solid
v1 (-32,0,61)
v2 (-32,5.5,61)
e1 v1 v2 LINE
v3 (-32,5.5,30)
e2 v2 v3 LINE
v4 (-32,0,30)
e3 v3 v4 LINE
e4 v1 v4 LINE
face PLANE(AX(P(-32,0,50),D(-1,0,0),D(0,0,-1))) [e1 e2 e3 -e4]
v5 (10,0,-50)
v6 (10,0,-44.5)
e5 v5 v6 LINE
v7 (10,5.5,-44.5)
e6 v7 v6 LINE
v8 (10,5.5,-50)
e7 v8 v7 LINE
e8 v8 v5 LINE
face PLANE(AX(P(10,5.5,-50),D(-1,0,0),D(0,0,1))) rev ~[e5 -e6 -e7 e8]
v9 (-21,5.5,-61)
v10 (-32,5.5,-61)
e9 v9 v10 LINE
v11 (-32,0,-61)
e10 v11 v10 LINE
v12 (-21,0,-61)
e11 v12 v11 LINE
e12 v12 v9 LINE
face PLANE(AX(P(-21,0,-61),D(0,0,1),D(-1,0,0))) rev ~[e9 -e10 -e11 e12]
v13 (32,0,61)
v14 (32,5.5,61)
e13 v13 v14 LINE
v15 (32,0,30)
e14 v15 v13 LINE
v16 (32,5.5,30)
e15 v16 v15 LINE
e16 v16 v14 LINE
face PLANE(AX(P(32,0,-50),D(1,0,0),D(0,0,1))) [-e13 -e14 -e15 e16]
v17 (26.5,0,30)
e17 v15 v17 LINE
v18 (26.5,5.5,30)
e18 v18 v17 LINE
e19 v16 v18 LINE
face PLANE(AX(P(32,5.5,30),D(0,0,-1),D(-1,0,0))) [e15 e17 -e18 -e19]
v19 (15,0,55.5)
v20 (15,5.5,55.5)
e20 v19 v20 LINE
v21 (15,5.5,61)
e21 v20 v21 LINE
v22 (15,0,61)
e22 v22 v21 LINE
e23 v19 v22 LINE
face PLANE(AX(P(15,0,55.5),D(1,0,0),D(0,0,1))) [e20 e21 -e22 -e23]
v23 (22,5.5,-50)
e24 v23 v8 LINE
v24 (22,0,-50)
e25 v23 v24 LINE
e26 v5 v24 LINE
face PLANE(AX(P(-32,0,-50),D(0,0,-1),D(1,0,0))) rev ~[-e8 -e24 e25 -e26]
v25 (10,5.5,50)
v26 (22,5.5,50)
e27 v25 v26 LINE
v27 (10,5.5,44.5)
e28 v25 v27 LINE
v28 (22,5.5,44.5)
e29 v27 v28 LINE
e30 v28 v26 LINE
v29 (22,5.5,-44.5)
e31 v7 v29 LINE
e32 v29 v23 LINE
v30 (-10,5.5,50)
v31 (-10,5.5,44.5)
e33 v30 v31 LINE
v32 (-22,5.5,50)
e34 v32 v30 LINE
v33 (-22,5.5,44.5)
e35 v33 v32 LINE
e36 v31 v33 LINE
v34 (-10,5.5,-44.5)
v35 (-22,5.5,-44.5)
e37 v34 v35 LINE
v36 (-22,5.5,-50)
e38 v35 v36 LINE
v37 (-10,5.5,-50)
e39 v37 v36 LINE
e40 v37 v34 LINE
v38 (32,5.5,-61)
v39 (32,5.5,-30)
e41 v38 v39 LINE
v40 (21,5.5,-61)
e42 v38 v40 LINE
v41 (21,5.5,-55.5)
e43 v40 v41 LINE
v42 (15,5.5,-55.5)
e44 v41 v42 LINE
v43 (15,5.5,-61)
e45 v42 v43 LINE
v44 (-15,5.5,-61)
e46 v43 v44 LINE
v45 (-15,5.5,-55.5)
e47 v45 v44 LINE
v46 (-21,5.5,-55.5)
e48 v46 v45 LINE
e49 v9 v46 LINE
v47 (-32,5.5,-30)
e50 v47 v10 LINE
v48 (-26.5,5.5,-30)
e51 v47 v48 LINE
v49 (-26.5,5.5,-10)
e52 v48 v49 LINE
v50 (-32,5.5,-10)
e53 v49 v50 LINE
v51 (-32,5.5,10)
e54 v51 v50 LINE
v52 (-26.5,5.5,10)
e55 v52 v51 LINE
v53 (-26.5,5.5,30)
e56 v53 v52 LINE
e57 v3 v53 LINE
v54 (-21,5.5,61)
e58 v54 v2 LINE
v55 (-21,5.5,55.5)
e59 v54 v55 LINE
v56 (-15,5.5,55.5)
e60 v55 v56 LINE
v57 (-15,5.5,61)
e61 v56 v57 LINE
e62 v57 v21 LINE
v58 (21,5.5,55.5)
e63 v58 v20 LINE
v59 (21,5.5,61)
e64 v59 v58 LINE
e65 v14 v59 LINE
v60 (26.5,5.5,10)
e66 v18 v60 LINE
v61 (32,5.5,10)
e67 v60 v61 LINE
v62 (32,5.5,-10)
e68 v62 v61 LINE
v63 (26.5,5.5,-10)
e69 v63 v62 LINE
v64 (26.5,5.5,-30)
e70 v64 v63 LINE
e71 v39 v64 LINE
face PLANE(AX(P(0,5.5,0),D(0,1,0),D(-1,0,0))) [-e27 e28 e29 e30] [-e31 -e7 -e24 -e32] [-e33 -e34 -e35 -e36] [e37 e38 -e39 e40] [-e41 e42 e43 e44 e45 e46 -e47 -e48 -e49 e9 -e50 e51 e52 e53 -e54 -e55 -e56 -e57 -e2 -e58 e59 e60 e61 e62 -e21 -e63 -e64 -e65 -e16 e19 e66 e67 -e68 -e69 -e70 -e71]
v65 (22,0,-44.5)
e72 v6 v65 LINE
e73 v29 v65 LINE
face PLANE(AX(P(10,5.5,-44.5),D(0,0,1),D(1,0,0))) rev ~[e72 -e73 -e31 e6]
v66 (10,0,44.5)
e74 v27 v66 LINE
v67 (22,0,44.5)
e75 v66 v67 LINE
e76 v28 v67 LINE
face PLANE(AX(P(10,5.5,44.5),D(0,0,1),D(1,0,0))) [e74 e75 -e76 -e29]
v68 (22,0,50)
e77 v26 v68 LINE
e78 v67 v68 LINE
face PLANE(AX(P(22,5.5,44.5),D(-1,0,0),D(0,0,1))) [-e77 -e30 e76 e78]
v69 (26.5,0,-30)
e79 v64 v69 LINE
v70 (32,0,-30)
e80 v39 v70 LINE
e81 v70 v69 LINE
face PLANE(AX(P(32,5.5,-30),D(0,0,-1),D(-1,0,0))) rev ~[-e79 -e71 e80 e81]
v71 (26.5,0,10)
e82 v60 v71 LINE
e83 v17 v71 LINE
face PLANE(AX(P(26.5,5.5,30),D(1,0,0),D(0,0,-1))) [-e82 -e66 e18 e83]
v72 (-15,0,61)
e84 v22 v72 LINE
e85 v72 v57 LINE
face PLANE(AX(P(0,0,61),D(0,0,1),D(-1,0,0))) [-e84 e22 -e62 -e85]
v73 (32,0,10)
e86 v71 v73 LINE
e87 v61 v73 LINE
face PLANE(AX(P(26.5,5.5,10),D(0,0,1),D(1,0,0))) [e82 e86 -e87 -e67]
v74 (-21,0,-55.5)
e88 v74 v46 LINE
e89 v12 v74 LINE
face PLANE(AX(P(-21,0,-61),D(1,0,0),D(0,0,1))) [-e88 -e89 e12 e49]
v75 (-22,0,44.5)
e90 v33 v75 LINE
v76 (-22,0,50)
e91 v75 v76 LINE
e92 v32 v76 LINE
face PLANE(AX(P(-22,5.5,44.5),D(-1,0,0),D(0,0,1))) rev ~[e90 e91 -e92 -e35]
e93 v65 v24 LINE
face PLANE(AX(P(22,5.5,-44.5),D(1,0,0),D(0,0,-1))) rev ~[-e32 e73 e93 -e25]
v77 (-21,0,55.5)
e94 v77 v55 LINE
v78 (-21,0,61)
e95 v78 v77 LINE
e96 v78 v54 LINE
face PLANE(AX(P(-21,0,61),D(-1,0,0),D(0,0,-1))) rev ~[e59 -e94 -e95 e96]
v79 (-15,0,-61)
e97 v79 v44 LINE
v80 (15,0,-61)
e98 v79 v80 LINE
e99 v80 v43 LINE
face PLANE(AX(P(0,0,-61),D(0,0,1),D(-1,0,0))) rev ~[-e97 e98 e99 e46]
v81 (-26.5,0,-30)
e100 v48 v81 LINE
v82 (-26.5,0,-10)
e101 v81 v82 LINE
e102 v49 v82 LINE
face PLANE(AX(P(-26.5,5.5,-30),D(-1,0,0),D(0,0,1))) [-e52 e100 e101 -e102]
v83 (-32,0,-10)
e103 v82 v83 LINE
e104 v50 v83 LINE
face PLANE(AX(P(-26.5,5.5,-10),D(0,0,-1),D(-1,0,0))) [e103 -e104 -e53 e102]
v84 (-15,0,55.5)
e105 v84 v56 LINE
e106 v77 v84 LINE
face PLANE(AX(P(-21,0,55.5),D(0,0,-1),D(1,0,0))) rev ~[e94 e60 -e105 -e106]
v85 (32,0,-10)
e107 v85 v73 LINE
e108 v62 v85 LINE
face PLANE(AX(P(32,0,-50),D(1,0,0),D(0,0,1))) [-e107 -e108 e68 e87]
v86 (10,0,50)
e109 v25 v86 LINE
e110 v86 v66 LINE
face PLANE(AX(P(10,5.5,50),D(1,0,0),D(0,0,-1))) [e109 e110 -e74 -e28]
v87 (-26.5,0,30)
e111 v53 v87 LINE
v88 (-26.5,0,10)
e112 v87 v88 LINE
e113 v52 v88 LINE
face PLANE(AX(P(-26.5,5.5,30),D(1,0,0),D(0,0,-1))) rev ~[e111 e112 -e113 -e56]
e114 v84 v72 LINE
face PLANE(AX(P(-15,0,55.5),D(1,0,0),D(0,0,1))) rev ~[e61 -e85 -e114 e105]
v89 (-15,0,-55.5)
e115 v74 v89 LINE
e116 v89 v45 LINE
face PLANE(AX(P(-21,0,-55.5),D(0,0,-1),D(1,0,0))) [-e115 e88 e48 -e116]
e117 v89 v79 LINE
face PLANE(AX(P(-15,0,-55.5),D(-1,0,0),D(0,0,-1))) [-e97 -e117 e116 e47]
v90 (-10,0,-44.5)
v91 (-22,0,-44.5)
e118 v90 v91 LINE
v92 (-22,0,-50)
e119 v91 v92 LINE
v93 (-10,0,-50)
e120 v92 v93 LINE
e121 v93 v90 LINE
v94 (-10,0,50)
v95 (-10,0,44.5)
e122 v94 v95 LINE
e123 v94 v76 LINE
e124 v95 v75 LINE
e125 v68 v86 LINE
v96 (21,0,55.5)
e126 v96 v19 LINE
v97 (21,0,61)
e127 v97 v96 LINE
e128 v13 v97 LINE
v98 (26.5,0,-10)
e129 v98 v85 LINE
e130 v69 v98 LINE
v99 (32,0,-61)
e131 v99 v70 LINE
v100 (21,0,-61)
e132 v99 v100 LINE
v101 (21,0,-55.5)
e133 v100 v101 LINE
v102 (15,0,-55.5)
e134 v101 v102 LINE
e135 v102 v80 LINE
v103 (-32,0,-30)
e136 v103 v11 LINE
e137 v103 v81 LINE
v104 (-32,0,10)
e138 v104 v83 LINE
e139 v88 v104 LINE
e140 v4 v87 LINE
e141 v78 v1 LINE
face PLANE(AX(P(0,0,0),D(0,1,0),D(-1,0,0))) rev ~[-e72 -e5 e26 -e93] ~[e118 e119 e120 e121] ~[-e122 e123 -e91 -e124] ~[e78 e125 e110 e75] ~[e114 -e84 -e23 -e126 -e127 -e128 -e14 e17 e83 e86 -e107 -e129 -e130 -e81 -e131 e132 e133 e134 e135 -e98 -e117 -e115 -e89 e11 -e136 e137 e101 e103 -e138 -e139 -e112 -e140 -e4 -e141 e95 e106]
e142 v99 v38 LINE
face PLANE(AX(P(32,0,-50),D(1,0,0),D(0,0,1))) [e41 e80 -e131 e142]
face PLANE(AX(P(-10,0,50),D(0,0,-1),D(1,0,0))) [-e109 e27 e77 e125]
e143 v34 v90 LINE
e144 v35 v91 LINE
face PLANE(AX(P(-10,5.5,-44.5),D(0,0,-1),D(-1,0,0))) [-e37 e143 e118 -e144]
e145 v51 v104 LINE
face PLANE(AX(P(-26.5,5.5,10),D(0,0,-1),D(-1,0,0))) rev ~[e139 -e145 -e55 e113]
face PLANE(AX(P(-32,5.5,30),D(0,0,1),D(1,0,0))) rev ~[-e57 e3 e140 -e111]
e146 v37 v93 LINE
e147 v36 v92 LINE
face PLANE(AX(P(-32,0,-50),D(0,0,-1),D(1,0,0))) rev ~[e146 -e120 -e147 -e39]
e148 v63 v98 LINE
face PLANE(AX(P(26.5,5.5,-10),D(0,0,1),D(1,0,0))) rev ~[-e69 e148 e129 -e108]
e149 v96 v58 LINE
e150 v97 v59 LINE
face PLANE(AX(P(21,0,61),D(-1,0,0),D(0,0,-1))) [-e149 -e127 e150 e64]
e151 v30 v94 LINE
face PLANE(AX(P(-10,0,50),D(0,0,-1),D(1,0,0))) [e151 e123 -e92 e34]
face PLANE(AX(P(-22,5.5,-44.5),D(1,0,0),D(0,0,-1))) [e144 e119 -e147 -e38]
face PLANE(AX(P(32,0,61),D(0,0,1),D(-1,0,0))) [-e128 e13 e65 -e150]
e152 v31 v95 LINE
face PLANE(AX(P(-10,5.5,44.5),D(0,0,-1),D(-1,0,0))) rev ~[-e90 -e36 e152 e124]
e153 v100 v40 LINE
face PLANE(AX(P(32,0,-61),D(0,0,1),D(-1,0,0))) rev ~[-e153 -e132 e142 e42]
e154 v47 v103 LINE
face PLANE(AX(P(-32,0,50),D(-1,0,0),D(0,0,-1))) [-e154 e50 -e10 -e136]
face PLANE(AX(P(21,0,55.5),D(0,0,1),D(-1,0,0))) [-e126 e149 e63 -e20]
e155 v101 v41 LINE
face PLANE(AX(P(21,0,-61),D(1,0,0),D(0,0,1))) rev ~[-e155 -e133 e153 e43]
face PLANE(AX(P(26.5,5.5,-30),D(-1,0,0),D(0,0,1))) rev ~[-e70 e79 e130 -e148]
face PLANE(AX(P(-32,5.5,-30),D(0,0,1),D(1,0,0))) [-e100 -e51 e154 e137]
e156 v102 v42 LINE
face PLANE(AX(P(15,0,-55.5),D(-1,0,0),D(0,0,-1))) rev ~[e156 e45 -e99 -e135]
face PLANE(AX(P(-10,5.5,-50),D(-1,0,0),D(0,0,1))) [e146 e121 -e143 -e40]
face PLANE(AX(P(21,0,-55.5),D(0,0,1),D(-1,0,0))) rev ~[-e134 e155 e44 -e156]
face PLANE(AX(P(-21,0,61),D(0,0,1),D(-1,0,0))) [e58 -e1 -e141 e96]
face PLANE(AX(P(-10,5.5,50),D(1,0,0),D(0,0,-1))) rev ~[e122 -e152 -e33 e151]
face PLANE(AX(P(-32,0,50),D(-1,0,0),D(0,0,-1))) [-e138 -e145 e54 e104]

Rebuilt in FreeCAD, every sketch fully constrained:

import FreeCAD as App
import Part
import Sketcher
from FreeCAD import Vector
Q = App.Units.Quantity


def add_polygon(sketch, points):
    """Adds a closed chain of lines whose ends are joined by coincident constraints."""
    first, n = sketch.GeometryCount, len(points)
    for a, b in zip(points, points[1:] + points[:1]):
        sketch.addGeometry(Part.LineSegment(App.Vector(*a, 0), App.Vector(*b, 0)), False)
    for i in range(n):
        sketch.addConstraint(Sketcher.Constraint("Coincident", first + i, 2, first + (i + 1) % n, 1))

doc = App.newDocument("Part")
body = doc.addObject("PartDesign::Body", "Body")

# Sketch on XZ plane
sketch1 = body.newObject("Sketcher::SketchObject", "Sketch")
sketch1.AttachmentSupport = (doc.getObject("XZ_Plane"), [""])
sketch1.MapMode = "FlatFace"
add_polygon(sketch1, [(32, -50), (-32, -50), (-32, 50), (32, 50)])  # lines 0-3
sketch1.addConstraint(Sketcher.Constraint("Horizontal", 0))
sketch1.addConstraint(Sketcher.Constraint("Vertical", 1))
sketch1.addConstraint(Sketcher.Constraint("Horizontal", 2))
sketch1.addConstraint(Sketcher.Constraint("Vertical", 3))
sketch1.addConstraint(Sketcher.Constraint("Symmetric", 0, 2, 2, 2, -1, 1))
sketch1.addConstraint(Sketcher.Constraint("DistanceX", 0, 2, 0, 1, Q("64 mm")))
sketch1.addConstraint(Sketcher.Constraint("DistanceY", 1, 1, 1, 2, Q("100 mm")))
pad1 = body.newObject("PartDesign::Pad", "Pad")
pad1.Profile = sketch1
pad1.Length = 5.5
pad1.Reversed = True

# Sketch on XZ plane
sketch2 = body.newObject("Sketcher::SketchObject", "Sketch001")
sketch2.AttachmentSupport = (doc.getObject("XZ_Plane"), [""])
sketch2.MapMode = "FlatFace"
sketch2.AttachmentOffset = App.Placement(Vector(0, 0, -5.5), App.Rotation())
add_polygon(sketch2, [(-26, 10), (-32, 10), (-32, 30), (-26, 30)])  # lines 0-3
add_polygon(sketch2, [(-26, -30), (-32, -30), (-32, -10), (-26, -10)])  # lines 4-7
add_polygon(sketch2, [(32, -10), (32, -30), (26, -30), (26, -10)])  # lines 8-11
add_polygon(sketch2, [(26, 30), (32, 30), (32, 10), (26, 10)])  # lines 12-15
sketch2.addConstraint(Sketcher.Constraint("Horizontal", 0))
sketch2.addConstraint(Sketcher.Constraint("Vertical", 1))
sketch2.addConstraint(Sketcher.Constraint("Horizontal", 2))
sketch2.addConstraint(Sketcher.Constraint("Vertical", 3))
sketch2.addConstraint(Sketcher.Constraint("Horizontal", 4))
sketch2.addConstraint(Sketcher.Constraint("Vertical", 5))
sketch2.addConstraint(Sketcher.Constraint("Horizontal", 6))
sketch2.addConstraint(Sketcher.Constraint("Vertical", 7))
sketch2.addConstraint(Sketcher.Constraint("Vertical", 8))
sketch2.addConstraint(Sketcher.Constraint("Horizontal", 9))
sketch2.addConstraint(Sketcher.Constraint("Vertical", 10))
sketch2.addConstraint(Sketcher.Constraint("Horizontal", 11))
sketch2.addConstraint(Sketcher.Constraint("Horizontal", 12))
sketch2.addConstraint(Sketcher.Constraint("Vertical", 13))
sketch2.addConstraint(Sketcher.Constraint("Horizontal", 14))
sketch2.addConstraint(Sketcher.Constraint("Vertical", 15))
sketch2.addConstraint(Sketcher.Constraint("Symmetric", 1, 2, 8, 2, -1, 1))
sketch2.addConstraint(Sketcher.Constraint("Symmetric", 3, 2, 10, 2, -1, 1))
sketch2.addConstraint(Sketcher.Constraint("Symmetric", 4, 2, 12, 2, -1, 1))
sketch2.addConstraint(Sketcher.Constraint("Symmetric", 6, 2, 14, 2, -1, 1))
sketch2.addConstraint(Sketcher.Constraint("Symmetric", 4, 2, 8, 2, -2))
sketch2.addConstraint(Sketcher.Constraint("Symmetric", 6, 2, 10, 2, -2))
sketch2.addConstraint(Sketcher.Constraint("DistanceY", 1, 1, 1, 2, Q("20 mm")))
sketch2.addConstraint(Sketcher.Constraint("DistanceX", 0, 2, 0, 1, Q("5.5 mm")))
sketch2.addConstraint(Sketcher.Constraint("DistanceY", 5, 2, 0, 2, Q("20 mm")))
sketch2.addConstraint(Sketcher.Constraint("DistanceX", 0, 2, -1, 1, Q("32 mm")))
pocket1 = body.newObject("PartDesign::Pocket", "Pocket")
pocket1.Profile = sketch2
pocket1.Type = "ThroughAll"
pocket1.Reversed = True

# Sketch on XZ plane
sketch3 = body.newObject("Sketcher::SketchObject", "Sketch002")
sketch3.AttachmentSupport = (doc.getObject("XZ_Plane"), [""])
sketch3.MapMode = "FlatFace"
sketch3.AttachmentOffset = App.Placement(Vector(0, 0, -5.5), App.Rotation())
add_polygon(sketch3, [(22, -44), (22, -50), (10, -50), (10, -44)])  # lines 0-3
add_polygon(sketch3, [(-10, -44), (-10, -50), (-22, -50), (-22, -44)])  # lines 4-7
add_polygon(sketch3, [(-22, 44), (-22, 50), (-10, 50), (-10, 44)])  # lines 8-11
add_polygon(sketch3, [(22, 44), (10, 44), (10, 50), (22, 50)])  # lines 12-15
sketch3.addConstraint(Sketcher.Constraint("Vertical", 0))
sketch3.addConstraint(Sketcher.Constraint("Horizontal", 1))
sketch3.addConstraint(Sketcher.Constraint("Vertical", 2))
sketch3.addConstraint(Sketcher.Constraint("Horizontal", 3))
sketch3.addConstraint(Sketcher.Constraint("Vertical", 4))
sketch3.addConstraint(Sketcher.Constraint("Horizontal", 5))
sketch3.addConstraint(Sketcher.Constraint("Vertical", 6))
sketch3.addConstraint(Sketcher.Constraint("Horizontal", 7))
sketch3.addConstraint(Sketcher.Constraint("Vertical", 8))
sketch3.addConstraint(Sketcher.Constraint("Horizontal", 9))
sketch3.addConstraint(Sketcher.Constraint("Vertical", 10))
sketch3.addConstraint(Sketcher.Constraint("Horizontal", 11))
sketch3.addConstraint(Sketcher.Constraint("Horizontal", 12))
sketch3.addConstraint(Sketcher.Constraint("Vertical", 13))
sketch3.addConstraint(Sketcher.Constraint("Horizontal", 14))
sketch3.addConstraint(Sketcher.Constraint("Vertical", 15))
sketch3.addConstraint(Sketcher.Constraint("Symmetric", 0, 2, 8, 2, -1, 1))
sketch3.addConstraint(Sketcher.Constraint("Symmetric", 2, 2, 10, 2, -1, 1))
sketch3.addConstraint(Sketcher.Constraint("Symmetric", 7, 2, 12, 2, -1, 1))
sketch3.addConstraint(Sketcher.Constraint("Symmetric", 5, 2, 14, 2, -1, 1))
sketch3.addConstraint(Sketcher.Constraint("Symmetric", 1, 2, 4, 2, -2))
sketch3.addConstraint(Sketcher.Constraint("Symmetric", 3, 2, 6, 2, -2))
sketch3.addConstraint(Sketcher.Constraint("DistanceX", 1, 2, 1, 1, Q("12 mm")))
sketch3.addConstraint(Sketcher.Constraint("DistanceY", 0, 2, 0, 1, Q("5.5 mm")))
sketch3.addConstraint(Sketcher.Constraint("DistanceX", 4, 2, 1, 2, Q("20 mm")))
sketch3.addConstraint(Sketcher.Constraint("DistanceY", 0, 2, -1, 1, Q("50 mm")))
pocket2 = body.newObject("PartDesign::Pocket", "Pocket001")
pocket2.Profile = sketch3
pocket2.Type = "ThroughAll"
pocket2.Reversed = True

# Sketch on XZ plane
sketch4 = body.newObject("Sketcher::SketchObject", "Sketch003")
sketch4.AttachmentSupport = (doc.getObject("XZ_Plane"), [""])
sketch4.MapMode = "FlatFace"
add_polygon(sketch4, [(32, 50), (32, 61), (21, 61), (21, 56), (15, 56), (15, 61), (-15, 61), (-15, 56), (-21, 56), (-21, 61), (-32, 61), (-32, 50)])  # lines 0-11
add_polygon(sketch4, [(-32, -50), (-32, -61), (-21, -61), (-21, -56), (-15, -56), (-15, -61), (15, -61), (15, -56), (21, -56), (21, -61), (32, -61), (32, -50)])  # lines 12-23
sketch4.addConstraint(Sketcher.Constraint("Vertical", 0))
sketch4.addConstraint(Sketcher.Constraint("Horizontal", 1))
sketch4.addConstraint(Sketcher.Constraint("Vertical", 2))
sketch4.addConstraint(Sketcher.Constraint("Horizontal", 3))
sketch4.addConstraint(Sketcher.Constraint("Vertical", 4))
sketch4.addConstraint(Sketcher.Constraint("Horizontal", 5))
sketch4.addConstraint(Sketcher.Constraint("Vertical", 6))
sketch4.addConstraint(Sketcher.Constraint("Horizontal", 7))
sketch4.addConstraint(Sketcher.Constraint("Vertical", 8))
sketch4.addConstraint(Sketcher.Constraint("Horizontal", 9))
sketch4.addConstraint(Sketcher.Constraint("Vertical", 10))
sketch4.addConstraint(Sketcher.Constraint("Horizontal", 11))
sketch4.addConstraint(Sketcher.Constraint("Vertical", 12))
sketch4.addConstraint(Sketcher.Constraint("Horizontal", 13))
sketch4.addConstraint(Sketcher.Constraint("Vertical", 14))
sketch4.addConstraint(Sketcher.Constraint("Horizontal", 15))
sketch4.addConstraint(Sketcher.Constraint("Vertical", 16))
sketch4.addConstraint(Sketcher.Constraint("Horizontal", 17))
sketch4.addConstraint(Sketcher.Constraint("Vertical", 18))
sketch4.addConstraint(Sketcher.Constraint("Horizontal", 19))
sketch4.addConstraint(Sketcher.Constraint("Vertical", 20))
sketch4.addConstraint(Sketcher.Constraint("Horizontal", 21))
sketch4.addConstraint(Sketcher.Constraint("Vertical", 22))
sketch4.addConstraint(Sketcher.Constraint("Horizontal", 23))
sketch4.addConstraint(Sketcher.Constraint("Symmetric", 0, 2, 12, 2, -1, 1))
sketch4.addConstraint(Sketcher.Constraint("Symmetric", 2, 2, 14, 2, -1, 1))
sketch4.addConstraint(Sketcher.Constraint("Symmetric", 4, 2, 16, 2, -1, 1))
sketch4.addConstraint(Sketcher.Constraint("Symmetric", 6, 2, 18, 2, -1, 1))
sketch4.addConstraint(Sketcher.Constraint("Symmetric", 8, 2, 20, 2, -1, 1))
sketch4.addConstraint(Sketcher.Constraint("Symmetric", 10, 2, 22, 2, -1, 1))
sketch4.addConstraint(Sketcher.Constraint("Symmetric", 3, 2, 6, 2, -2))
sketch4.addConstraint(Sketcher.Constraint("Symmetric", 1, 2, 8, 2, -2))
sketch4.addConstraint(Sketcher.Constraint("Horizontal", 1, 2, 4, 2))
sketch4.addConstraint(Sketcher.Constraint("Vertical", 10, 2, 12, 2))
sketch4.addConstraint(Sketcher.Constraint("Equal", 21, 0))
sketch4.addConstraint(Sketcher.Constraint("DistanceX", 1, 2, 1, 1, Q("11 mm")))
sketch4.addConstraint(Sketcher.Constraint("DistanceX", 3, 2, 3, 1, Q("6 mm")))
sketch4.addConstraint(Sketcher.Constraint("DistanceX", 11, 1, 11, 2, Q("64 mm")))
sketch4.addConstraint(Sketcher.Constraint("DistanceY", 2, 2, 2, 1, Q("5.5 mm")))
sketch4.addConstraint(Sketcher.Constraint("DistanceY", -1, 1, 0, 2, Q("61 mm")))
pad2 = body.newObject("PartDesign::Pad", "Pad001")
pad2.Profile = sketch4
pad2.Length = 5.5
pad2.Reversed = True

doc.recompute()
